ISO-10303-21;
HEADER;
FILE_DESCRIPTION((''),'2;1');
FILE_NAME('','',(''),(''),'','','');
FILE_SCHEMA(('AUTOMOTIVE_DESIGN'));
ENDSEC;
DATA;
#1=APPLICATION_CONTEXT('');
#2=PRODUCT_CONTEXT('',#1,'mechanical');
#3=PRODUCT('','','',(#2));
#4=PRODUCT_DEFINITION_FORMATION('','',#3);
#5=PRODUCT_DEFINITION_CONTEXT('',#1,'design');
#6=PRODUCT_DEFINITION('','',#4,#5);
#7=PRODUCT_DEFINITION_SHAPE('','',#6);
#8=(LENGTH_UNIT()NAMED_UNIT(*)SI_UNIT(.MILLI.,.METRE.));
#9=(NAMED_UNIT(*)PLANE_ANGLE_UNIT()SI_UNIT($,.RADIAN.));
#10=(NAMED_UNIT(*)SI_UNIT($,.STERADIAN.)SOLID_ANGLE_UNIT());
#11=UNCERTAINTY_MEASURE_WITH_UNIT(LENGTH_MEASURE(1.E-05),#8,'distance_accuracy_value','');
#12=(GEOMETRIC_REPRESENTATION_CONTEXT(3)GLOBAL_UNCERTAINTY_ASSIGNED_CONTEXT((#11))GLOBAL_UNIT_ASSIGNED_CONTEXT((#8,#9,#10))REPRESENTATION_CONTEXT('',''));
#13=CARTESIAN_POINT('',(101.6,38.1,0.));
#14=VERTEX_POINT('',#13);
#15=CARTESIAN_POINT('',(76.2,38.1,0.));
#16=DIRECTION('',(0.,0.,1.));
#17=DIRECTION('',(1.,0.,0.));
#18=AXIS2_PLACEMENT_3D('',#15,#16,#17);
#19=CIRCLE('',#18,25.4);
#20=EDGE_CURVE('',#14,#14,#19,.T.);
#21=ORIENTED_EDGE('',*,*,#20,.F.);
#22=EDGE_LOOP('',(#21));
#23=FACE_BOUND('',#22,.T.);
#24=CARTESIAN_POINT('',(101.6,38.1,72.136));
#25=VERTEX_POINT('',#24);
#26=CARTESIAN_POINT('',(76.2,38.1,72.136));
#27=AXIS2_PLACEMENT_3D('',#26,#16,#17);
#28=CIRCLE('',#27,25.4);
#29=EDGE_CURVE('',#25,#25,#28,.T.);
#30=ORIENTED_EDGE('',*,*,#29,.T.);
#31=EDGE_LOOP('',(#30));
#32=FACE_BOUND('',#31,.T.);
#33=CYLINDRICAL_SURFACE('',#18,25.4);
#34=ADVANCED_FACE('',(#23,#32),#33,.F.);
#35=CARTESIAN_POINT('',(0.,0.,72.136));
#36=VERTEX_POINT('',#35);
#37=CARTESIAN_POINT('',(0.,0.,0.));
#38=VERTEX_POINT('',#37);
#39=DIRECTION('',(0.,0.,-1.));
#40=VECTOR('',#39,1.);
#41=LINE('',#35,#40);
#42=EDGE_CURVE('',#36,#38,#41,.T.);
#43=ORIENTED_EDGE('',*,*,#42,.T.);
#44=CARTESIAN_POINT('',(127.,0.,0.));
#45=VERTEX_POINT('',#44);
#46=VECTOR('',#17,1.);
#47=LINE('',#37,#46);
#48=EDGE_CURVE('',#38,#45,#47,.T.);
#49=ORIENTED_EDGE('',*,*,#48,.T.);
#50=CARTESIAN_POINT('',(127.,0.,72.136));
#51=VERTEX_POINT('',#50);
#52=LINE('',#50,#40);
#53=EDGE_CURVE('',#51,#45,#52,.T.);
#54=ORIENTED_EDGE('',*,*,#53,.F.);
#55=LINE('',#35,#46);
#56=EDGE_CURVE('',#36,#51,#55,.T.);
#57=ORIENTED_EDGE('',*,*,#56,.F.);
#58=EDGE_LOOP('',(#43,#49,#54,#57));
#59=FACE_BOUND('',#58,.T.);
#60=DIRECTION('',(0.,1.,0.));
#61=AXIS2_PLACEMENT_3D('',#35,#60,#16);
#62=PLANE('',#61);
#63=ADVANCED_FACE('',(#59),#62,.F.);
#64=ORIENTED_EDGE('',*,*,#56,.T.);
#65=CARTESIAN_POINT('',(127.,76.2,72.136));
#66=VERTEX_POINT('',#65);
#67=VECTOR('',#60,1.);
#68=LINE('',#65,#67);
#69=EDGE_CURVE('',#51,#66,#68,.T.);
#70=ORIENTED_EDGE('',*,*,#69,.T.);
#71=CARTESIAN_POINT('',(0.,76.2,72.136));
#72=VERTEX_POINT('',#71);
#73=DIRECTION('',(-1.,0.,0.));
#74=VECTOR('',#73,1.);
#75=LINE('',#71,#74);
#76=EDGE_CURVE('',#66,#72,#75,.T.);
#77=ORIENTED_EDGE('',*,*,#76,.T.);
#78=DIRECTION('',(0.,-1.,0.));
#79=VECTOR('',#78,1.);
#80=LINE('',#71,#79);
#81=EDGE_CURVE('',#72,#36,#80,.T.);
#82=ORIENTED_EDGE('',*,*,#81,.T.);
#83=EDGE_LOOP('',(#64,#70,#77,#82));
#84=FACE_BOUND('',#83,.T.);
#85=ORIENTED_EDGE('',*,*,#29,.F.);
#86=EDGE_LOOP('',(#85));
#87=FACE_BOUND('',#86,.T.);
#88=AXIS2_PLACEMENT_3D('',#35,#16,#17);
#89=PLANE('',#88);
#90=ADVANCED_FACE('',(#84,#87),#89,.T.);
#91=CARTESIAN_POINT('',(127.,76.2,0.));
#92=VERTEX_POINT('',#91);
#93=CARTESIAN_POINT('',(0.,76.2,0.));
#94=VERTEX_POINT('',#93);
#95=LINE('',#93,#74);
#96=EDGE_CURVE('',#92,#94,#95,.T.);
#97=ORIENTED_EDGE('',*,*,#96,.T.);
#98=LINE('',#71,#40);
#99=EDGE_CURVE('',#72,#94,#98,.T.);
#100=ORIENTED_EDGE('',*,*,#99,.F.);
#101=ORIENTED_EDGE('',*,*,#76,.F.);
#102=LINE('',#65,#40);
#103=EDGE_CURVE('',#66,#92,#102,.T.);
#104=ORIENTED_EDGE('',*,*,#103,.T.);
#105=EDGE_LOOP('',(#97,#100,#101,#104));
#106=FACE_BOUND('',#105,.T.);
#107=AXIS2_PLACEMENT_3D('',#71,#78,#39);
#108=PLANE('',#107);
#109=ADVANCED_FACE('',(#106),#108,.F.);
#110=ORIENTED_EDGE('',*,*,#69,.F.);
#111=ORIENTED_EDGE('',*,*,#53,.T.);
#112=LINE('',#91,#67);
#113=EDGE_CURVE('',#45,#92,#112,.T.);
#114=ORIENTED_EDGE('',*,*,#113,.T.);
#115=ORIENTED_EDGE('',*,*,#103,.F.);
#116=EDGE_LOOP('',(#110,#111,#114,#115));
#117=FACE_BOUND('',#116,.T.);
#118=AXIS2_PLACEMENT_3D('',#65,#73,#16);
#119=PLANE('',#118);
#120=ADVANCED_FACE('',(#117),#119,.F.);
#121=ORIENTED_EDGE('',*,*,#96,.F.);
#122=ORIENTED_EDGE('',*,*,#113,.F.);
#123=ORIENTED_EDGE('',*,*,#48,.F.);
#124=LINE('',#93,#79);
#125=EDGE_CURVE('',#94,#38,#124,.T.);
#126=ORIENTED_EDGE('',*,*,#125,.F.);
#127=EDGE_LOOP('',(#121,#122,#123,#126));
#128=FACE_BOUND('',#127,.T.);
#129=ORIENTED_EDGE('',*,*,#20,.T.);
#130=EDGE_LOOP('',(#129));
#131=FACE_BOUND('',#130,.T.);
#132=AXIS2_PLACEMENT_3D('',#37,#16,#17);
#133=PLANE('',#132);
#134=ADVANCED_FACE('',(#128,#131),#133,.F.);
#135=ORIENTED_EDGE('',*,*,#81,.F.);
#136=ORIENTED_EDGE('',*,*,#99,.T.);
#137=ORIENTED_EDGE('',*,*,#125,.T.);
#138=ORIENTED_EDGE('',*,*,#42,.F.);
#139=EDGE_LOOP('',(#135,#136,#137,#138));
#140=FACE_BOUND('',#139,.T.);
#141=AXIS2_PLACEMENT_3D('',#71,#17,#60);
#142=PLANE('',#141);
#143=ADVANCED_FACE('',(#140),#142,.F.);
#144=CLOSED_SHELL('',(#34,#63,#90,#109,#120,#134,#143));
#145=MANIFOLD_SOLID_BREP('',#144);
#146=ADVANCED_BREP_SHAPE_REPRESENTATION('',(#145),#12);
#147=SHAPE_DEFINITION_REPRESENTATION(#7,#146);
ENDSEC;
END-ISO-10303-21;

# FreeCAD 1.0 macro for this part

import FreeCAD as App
import Part
import Sketcher
from FreeCAD import Vector
Q = App.Units.Quantity


def add_polygon(sketch, points):
    """Adds a closed chain of lines whose ends are joined by coincident constraints."""
    first, n = sketch.GeometryCount, len(points)
    for a, b in zip(points, points[1:] + points[:1]):
        sketch.addGeometry(Part.LineSegment(App.Vector(*a, 0), App.Vector(*b, 0)), False)
    for i in range(n):
        sketch.addConstraint(Sketcher.Constraint("Coincident", first + i, 2, first + (i + 1) % n, 1))

doc = App.newDocument("Part")
params = doc.addObject("Spreadsheet::Sheet", "Params")
for row, (alias, value) in enumerate([
    ("sketch1_width", "5 in"),
    ("sketch1_height", "3 in"),
    ("pad1_length", "2.84 in"),
    ("sketch2_diameter", "2 in"),
], start=1):
    params.set(f"A{row}", alias)
    params.set(f"B{row}", "=" + value)
    params.setAlias(f"B{row}", alias)

body = doc.addObject("PartDesign::Body", "Body")

# Sketch on XY plane
sketch1 = body.newObject("Sketcher::SketchObject", "Sketch")
sketch1.AttachmentSupport = (doc.getObject("XY_Plane"), [""])
sketch1.MapMode = "FlatFace"
add_polygon(sketch1, [(0, 76), (0, 0), (127, 0), (127, 76)])  # lines 0-3
sketch1.addConstraint([
    Sketcher.Constraint("Vertical", 0),
    Sketcher.Constraint("Horizontal", 1),
    Sketcher.Constraint("Vertical", 2),
    Sketcher.Constraint("Horizontal", 3),
    Sketcher.Constraint("Coincident", 0, 2, -1, 1),
    Sketcher.Constraint("DistanceX", 1, 1, 1, 2, Q("5 in")),
    Sketcher.Constraint("DistanceY", 0, 2, 0, 1, Q("3 in")),
])
sketch1.setExpression("Constraints[9]", "Params.sketch1_width")
sketch1.setExpression("Constraints[10]", "Params.sketch1_height")
pad1 = body.newObject("PartDesign::Pad", "Pad")
pad1.Profile = sketch1
pad1.setExpression("Length", "Params.pad1_length")

# Sketch on XY plane
sketch2 = body.newObject("Sketcher::SketchObject", "Sketch001")
sketch2.AttachmentSupport = (doc.getObject("XY_Plane"), [""])
sketch2.MapMode = "FlatFace"
sketch2.AttachmentOffset = App.Placement(Vector(0, 0, 2.84 * 25.4), App.Rotation())
sketch2.addGeometry(Part.Circle(Vector(76, 38, 0), Vector(0, 0, 1), 25), False)
sketch2.addConstraint([
    Sketcher.Constraint("Diameter", 0, Q("2 in")),
    Sketcher.Constraint("DistanceX", -1, 1, 0, 3, Q("3 in")),
    Sketcher.Constraint("DistanceY", -1, 1, 0, 3, Q("1.5 in")),
])
sketch2.setExpression("Constraints[0]", "Params.sketch2_diameter")
pocket1 = body.newObject("PartDesign::Pocket", "Pocket")
pocket1.Profile = sketch2
pocket1.Type = "ThroughAll"

doc.recompute()
